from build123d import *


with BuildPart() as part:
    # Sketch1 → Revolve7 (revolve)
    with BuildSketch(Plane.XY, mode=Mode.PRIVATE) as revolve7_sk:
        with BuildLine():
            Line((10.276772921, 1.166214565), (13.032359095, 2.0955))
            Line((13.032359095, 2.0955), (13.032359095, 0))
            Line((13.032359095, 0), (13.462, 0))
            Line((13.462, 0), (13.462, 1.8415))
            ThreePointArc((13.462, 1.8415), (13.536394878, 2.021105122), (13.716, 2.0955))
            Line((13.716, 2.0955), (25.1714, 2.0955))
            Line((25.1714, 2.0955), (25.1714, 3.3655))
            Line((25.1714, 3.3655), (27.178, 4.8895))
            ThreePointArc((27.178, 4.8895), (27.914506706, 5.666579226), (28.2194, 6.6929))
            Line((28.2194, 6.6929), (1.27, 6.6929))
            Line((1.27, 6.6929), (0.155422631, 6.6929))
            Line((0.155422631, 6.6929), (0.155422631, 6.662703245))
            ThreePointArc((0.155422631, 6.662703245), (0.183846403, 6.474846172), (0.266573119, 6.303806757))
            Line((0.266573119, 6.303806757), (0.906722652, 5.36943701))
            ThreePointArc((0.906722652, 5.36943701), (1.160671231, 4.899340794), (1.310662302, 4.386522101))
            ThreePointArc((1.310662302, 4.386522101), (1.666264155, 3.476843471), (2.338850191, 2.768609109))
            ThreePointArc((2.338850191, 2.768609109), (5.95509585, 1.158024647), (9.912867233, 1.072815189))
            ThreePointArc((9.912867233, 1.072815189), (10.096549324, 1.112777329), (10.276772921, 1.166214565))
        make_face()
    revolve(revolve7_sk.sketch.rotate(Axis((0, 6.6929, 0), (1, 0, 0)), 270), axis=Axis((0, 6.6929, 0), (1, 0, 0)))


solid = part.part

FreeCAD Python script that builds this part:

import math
import FreeCAD as App
import Part
import Sketcher

V = App.Vector
Q = App.Units.Quantity

doc = App.newDocument("Part")
body = doc.addObject("PartDesign::Body", "Body")

sketch1 = doc.addObject("Sketcher::SketchObject", "Sketch")
body.addObject(sketch1)
sketch1.AttachmentSupport = (doc.XY_Plane, [""])
sketch1.MapMode = "FlatFace"
sketch1.addGeometry([
    Part.LineSegment(V(10.276773, 1.166215, 0), V(13.032359, 2.0955, 0)),
    Part.LineSegment(V(13.032359, 2.0955, 0), V(13.032359, 0, 0)),
    Part.LineSegment(V(13.032359, 0, 0), V(13.462, 0, 0)),
    Part.LineSegment(V(13.462, 0, 0), V(13.462, 1.8415, 0)),
    Part.ArcOfCircle(Part.Circle(V(13.716, 1.8415, 0), V(0, 0, 1), 0.254), math.radians(90), math.radians(180)),
    Part.LineSegment(V(13.716, 2.0955, 0), V(25.1714, 2.0955, 0)),
    Part.LineSegment(V(25.1714, 2.0955, 0), V(25.1714, 3.3655, 0)),
    Part.LineSegment(V(25.1714, 3.3655, 0), V(27.178, 4.8895, 0)),
    Part.ArcOfCircle(Part.Circle(V(25.922828, 6.816704, 0), V(0, 0, 1), 2.299907), math.radians(-56.924123), math.radians(-3.085718)),
    Part.LineSegment(V(28.2194, 6.6929, 0), V(0.155423, 6.6929, 0)),
    Part.LineSegment(V(0.155423, 6.6929, 0), V(0.155423, 6.662703, 0)),
    Part.ArcOfCircle(Part.Circle(V(0.790423, 6.662703, 0), V(0, 0, 1), 0.635), math.radians(180), math.radians(214.415578)),
    Part.LineSegment(V(0.266573, 6.303807, 0), V(0.906723, 5.369437, 0)),
    Part.ArcOfCircle(Part.Circle(V(-1.188675, 3.933851, 0), V(0, 0, 1), 2.54), math.radians(10.265919), math.radians(34.415578)),
    Part.ArcOfCircle(Part.Circle(V(3.81, 4.839193, 0), V(0, 0, 1), 2.54), math.radians(-169.734081), math.radians(-125.393791)),
    Part.ArcOfCircle(Part.Circle(V(8.145529, 10.941275, 0), V(0, 0, 1), 10.025467), math.radians(-125.393791), math.radians(-79.84656)),
    Part.ArcOfCircle(Part.Circle(V(9.465104, 3.573037, 0), V(0, 0, 1), 2.54), math.radians(-79.84656), math.radians(-71.363994)),
], False)
sketch1.addGeometry(Part.LineSegment(V(-1.188675, 6.6929, 0), V(28.2194, 6.6929, 0)), True)
sketch1.addConstraint([
    Sketcher.Constraint("Coincident", 0, 2, 1, 1),
    Sketcher.Constraint("Coincident", 1, 2, 2, 1),
    Sketcher.Constraint("Coincident", 2, 2, 3, 1),
    Sketcher.Constraint("Tangent", 3, 2, 4, 2),
    Sketcher.Constraint("Tangent", 4, 1, 5, 1),
    Sketcher.Constraint("Coincident", 5, 2, 6, 1),
    Sketcher.Constraint("Coincident", 6, 2, 7, 1),
    Sketcher.Constraint("Coincident", 7, 2, 8, 1),
    Sketcher.Constraint("Coincident", 8, 2, 9, 1),
    Sketcher.Constraint("Coincident", 9, 2, 10, 1),
    Sketcher.Constraint("Tangent", 10, 2, 11, 1),
    Sketcher.Constraint("Tangent", 11, 2, 12, 1),
    Sketcher.Constraint("Tangent", 12, 2, 13, 2),
    Sketcher.Constraint("Tangent", 13, 1, 14, 1),
    Sketcher.Constraint("Tangent", 14, 2, 15, 1),
    Sketcher.Constraint("Tangent", 15, 2, 16, 1),
    Sketcher.Constraint("Tangent", 16, 2, 0, 1),
    Sketcher.Constraint("Vertical", 1),
    Sketcher.Constraint("Horizontal", 2),
    Sketcher.Constraint("Vertical", 3),
    Sketcher.Constraint("Horizontal", 5),
    Sketcher.Constraint("Vertical", 6),
    Sketcher.Constraint("Horizontal", 9),
    Sketcher.Constraint("Vertical", 10),
    Sketcher.Constraint("Horizontal", 17),
    Sketcher.Constraint("Coincident", 17, 2, 8, 2),
    Sketcher.Constraint("Equal", 13, 14),
    Sketcher.Constraint("Equal", 14, 16),
    Sketcher.Constraint("PointOnObject", 1, 2, -1),
    Sketcher.Constraint("Horizontal", 0, 2, 4, 1),
    Sketcher.Constraint("Vertical", 13, 3, 17, 1),
    Sketcher.Constraint("Radius", 13, Q("0.1 in")),
    Sketcher.Constraint("Radius", 4, Q("0.01 in")),
    Sketcher.Constraint("Radius", 11, Q("0.025 in")),
    Sketcher.Constraint("DistanceY", 6, 1, 6, 2, Q("0.05 in")),
    Sketcher.Constraint("DistanceX", 5, 1, 5, 2, Q("0.451 in")),
    Sketcher.Constraint("DistanceX", -1, 1, 4, 3, Q("0.54 in")),
    Sketcher.Constraint("DistanceX", -1, 1, 14, 3, Q("0.15 in")),
    Sketcher.Constraint("DistanceX", -1, 1, 7, 2, Q("1.07 in")),
    Sketcher.Constraint("DistanceY", 6, 2, 7, 2, Q("0.06 in")),
    Sketcher.Constraint("DistanceX", 6, 2, 8, 2, Q("0.12 in")),
    Sketcher.Constraint("DistanceY", 1, 2, 1, 1, Q("0.0825 in")),
    Sketcher.Constraint("DistanceY", 7, 2, 8, 2, Q("0.071 in")),
    Sketcher.Constraint("Radius", 8, Q("2.299907 mm")),
    Sketcher.Constraint("Radius", 15, Q("10.025467 mm")),
    Sketcher.Constraint("DistanceX", 2, 1, 2, 2, Q("0.429641 mm")),
    Sketcher.Constraint("DistanceY", 11, 3, 8, 3, Q("0.154001 mm")),
    Sketcher.Constraint("DistanceX", 13, 3, 11, 3, Q("1.979098 mm")),
    Sketcher.Constraint("DistanceX", 15, 3, 8, 3, Q("17.777299 mm")),
    Sketcher.Constraint("DistanceX", 11, 3, 12, 2, Q("0.1163 mm")),
    Sketcher.Constraint("DistanceY", 15, 2, 16, 2, Q("0.093399 mm")),
    Sketcher.Constraint("DistanceX", 9, 2, 9, 1, Q("28.063977 mm")),
])
revolution = doc.addObject("PartDesign::Revolution", "Revolution")
body.addObject(revolution)
revolution.Profile = sketch1
revolution.ReferenceAxis = (sketch1, ["Axis0"])
revolution.Angle = 360

doc.recompute()
